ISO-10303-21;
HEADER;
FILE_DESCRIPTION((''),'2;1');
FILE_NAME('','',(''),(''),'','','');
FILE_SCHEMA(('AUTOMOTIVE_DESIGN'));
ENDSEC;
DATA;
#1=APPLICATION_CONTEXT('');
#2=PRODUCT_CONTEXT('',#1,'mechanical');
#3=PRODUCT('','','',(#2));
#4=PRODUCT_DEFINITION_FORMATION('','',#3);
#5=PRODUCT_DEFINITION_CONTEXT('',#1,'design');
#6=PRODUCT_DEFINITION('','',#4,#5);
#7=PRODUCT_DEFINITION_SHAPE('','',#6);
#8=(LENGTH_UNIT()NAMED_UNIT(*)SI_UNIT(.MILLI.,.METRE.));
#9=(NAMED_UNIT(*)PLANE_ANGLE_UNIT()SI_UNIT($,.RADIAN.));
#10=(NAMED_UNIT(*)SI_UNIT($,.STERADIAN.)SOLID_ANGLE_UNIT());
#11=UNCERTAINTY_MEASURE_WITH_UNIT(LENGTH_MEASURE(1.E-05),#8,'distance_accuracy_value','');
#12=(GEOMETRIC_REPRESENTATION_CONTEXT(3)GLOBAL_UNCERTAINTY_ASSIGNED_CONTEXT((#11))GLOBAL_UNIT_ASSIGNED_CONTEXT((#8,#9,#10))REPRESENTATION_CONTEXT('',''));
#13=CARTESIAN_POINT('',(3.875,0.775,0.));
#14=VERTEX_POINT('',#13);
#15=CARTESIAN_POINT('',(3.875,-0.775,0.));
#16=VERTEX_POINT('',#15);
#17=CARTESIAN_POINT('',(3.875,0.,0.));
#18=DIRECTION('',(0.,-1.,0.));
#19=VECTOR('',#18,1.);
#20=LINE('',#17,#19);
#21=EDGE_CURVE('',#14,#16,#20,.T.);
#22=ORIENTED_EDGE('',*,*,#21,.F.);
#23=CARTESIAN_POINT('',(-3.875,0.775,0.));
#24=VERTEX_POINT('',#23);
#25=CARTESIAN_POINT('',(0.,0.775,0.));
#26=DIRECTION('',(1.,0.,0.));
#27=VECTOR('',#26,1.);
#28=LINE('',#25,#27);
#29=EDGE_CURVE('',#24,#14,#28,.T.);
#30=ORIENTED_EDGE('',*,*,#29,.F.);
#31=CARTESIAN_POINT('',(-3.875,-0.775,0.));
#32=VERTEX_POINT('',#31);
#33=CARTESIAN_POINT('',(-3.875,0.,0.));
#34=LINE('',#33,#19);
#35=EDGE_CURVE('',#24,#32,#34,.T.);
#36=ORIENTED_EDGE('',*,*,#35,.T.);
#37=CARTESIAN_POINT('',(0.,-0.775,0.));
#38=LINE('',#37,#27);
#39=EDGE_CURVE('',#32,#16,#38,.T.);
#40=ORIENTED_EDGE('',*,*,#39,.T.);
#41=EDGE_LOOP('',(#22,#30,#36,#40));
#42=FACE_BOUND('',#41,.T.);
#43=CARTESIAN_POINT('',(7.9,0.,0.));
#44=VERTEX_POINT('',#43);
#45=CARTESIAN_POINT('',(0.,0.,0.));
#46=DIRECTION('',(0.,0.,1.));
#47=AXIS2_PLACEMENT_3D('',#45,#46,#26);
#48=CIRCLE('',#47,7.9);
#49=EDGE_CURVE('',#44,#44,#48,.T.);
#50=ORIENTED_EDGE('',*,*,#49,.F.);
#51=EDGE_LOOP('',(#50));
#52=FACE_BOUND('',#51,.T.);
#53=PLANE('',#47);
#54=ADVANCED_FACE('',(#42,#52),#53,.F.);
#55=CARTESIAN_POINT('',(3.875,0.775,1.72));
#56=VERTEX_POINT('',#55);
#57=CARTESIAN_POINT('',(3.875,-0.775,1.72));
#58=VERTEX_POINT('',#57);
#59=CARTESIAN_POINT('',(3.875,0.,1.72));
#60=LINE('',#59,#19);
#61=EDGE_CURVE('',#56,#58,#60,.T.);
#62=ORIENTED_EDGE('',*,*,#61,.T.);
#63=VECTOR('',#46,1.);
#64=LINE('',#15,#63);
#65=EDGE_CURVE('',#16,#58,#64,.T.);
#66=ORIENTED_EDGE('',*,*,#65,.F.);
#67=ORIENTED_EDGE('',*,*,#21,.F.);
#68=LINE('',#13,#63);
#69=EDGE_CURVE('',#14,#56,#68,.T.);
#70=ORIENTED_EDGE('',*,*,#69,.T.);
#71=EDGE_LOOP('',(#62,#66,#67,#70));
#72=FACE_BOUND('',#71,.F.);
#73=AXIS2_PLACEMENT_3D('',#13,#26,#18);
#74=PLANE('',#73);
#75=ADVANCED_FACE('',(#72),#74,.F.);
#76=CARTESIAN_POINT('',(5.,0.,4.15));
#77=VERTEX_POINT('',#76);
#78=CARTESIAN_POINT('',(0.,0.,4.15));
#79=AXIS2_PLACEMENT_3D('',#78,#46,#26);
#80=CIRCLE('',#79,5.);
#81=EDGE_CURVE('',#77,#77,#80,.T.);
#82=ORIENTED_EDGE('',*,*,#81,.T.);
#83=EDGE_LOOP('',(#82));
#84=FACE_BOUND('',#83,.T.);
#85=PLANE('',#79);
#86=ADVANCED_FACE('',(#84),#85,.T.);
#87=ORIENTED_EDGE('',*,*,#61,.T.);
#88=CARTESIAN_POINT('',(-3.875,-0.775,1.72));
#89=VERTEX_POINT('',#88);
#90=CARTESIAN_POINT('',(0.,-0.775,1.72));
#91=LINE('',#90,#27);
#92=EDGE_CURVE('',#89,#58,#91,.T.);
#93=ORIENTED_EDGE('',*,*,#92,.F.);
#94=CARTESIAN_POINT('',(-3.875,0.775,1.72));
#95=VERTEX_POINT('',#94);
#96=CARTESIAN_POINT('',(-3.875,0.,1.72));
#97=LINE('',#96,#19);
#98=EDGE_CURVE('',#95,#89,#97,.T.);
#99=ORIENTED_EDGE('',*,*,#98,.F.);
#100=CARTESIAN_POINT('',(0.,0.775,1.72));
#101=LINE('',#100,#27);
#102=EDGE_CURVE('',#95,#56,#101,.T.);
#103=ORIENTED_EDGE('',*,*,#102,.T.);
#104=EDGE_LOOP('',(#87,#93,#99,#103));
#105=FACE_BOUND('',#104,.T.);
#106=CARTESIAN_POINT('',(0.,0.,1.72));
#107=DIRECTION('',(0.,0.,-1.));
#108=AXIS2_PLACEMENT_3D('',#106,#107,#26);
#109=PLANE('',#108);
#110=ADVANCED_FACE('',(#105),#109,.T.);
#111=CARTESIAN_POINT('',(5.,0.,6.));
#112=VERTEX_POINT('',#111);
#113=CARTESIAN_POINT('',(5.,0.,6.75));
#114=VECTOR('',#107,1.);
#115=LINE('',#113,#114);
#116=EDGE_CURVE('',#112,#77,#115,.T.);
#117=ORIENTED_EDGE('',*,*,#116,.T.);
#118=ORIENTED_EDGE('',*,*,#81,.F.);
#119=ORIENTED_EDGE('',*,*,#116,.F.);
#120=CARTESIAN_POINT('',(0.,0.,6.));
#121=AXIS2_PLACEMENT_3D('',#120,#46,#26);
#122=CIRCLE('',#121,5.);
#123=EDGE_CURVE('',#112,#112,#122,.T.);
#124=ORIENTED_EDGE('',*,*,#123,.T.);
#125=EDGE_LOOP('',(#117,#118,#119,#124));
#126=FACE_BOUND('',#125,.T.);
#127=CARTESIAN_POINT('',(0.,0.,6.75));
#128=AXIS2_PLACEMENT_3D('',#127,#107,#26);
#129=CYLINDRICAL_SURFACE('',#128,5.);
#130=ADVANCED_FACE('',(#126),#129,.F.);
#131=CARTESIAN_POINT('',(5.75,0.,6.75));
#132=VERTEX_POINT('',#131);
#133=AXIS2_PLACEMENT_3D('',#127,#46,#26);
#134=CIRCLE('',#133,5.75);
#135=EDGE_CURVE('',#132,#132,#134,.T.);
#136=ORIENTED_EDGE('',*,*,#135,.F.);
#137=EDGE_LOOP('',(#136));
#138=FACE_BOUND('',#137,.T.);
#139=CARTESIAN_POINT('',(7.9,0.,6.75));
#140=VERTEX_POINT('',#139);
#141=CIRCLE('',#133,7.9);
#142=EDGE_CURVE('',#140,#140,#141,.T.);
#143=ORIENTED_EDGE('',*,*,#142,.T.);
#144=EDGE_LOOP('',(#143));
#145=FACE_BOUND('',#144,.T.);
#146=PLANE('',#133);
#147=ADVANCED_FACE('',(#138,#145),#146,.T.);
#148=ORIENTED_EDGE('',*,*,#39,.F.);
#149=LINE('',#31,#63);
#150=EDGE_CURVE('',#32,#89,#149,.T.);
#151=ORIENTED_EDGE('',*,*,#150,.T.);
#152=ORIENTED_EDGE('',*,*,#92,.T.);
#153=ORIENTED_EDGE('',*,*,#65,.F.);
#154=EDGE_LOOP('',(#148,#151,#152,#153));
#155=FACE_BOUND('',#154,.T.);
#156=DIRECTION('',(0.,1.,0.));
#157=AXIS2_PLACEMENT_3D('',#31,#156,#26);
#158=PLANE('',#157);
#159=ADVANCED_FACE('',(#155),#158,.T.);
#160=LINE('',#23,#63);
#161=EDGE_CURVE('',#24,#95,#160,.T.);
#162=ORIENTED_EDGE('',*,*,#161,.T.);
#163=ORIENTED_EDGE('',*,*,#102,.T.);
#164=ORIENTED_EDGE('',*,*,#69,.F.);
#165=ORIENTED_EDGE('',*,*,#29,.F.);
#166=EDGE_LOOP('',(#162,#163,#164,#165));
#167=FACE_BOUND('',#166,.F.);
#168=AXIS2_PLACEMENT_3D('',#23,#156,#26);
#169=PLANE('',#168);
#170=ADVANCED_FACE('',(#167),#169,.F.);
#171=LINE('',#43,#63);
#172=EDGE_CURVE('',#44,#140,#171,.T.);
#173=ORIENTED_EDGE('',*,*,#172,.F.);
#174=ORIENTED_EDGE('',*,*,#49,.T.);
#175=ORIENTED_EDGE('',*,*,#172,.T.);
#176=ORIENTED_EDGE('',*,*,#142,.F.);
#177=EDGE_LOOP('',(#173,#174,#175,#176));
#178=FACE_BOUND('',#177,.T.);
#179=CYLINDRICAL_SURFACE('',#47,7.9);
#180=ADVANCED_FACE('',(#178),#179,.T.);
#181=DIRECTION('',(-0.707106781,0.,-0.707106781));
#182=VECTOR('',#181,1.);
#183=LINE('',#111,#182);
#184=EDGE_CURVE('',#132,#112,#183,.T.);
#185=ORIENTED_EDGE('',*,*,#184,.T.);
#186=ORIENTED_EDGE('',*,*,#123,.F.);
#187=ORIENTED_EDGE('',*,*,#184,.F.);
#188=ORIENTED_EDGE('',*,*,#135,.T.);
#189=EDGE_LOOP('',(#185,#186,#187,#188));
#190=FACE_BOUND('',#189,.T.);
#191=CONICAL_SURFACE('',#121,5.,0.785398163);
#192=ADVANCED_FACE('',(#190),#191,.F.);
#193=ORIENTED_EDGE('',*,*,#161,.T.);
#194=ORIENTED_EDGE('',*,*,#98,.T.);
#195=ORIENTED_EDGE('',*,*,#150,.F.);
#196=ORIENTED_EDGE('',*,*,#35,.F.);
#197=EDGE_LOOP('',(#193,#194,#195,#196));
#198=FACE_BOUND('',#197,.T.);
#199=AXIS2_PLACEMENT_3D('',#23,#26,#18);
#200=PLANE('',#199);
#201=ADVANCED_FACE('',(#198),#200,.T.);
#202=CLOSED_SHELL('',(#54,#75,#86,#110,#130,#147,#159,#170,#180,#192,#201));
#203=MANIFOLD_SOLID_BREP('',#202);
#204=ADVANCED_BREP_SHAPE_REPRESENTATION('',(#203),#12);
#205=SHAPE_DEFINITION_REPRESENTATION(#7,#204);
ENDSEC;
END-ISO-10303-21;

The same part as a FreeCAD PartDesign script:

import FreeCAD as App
import Part
import Sketcher
Q = App.Units.Quantity


def edges_at(feature, points):
    """Names of the edges that pass closest to the given points."""
    edges = feature.Shape.Edges
    near = lambda p: min(range(len(edges)), key=lambda i: edges[i].distToShape(Part.Vertex(*p))[0])
    return sorted({f"Edge{near(p) + 1}" for p in points})

doc = App.newDocument("Part")
body = doc.addObject("PartDesign::Body", "Body")

# Sketch on XZ plane
sketch1 = body.newObject("Sketcher::SketchObject", "Sketch")
sketch1.AttachmentSupport = (doc.getObject("XZ_Plane"), [""])
sketch1.MapMode = "FlatFace"
sketch1.addGeometry([
    Part.LineSegment(App.Vector(0, 4.2, 0), App.Vector(0, 0, 0)),  # 0
    Part.LineSegment(App.Vector(0, 0, 0), App.Vector(7.9, 0, 0)),  # 1
    Part.LineSegment(App.Vector(7.9, 0, 0), App.Vector(7.9, 6.8, 0)),  # 2
    Part.LineSegment(App.Vector(7.9, 6.8, 0), App.Vector(5, 6.8, 0)),  # 3
    Part.LineSegment(App.Vector(5, 6.8, 0), App.Vector(5, 4.2, 0)),  # 4
    Part.LineSegment(App.Vector(5, 4.2, 0), App.Vector(0, 4.2, 0)),  # 5
], False)
sketch1.addConstraint([
    Sketcher.Constraint("Coincident", 0, 2, 1, 1),
    Sketcher.Constraint("Coincident", 1, 2, 2, 1),
    Sketcher.Constraint("Coincident", 2, 2, 3, 1),
    Sketcher.Constraint("Coincident", 3, 2, 4, 1),
    Sketcher.Constraint("Coincident", 4, 2, 5, 1),
    Sketcher.Constraint("Coincident", 5, 2, 0, 1),
    Sketcher.Constraint("Vertical", 0),
    Sketcher.Constraint("Horizontal", 1),
    Sketcher.Constraint("Vertical", 2),
    Sketcher.Constraint("Horizontal", 3),
    Sketcher.Constraint("Vertical", 4),
    Sketcher.Constraint("Horizontal", 5),
    Sketcher.Constraint("Coincident", 0, 2, -1, 1),
    Sketcher.Constraint("DistanceX", 5, 2, 5, 1, Q("5 mm")),
    Sketcher.Constraint("DistanceX", 1, 1, 1, 2, Q("7.9 mm")),
    Sketcher.Constraint("DistanceY", 4, 2, 4, 1, Q("2.6 mm")),
    Sketcher.Constraint("DistanceY", 0, 2, 0, 1, Q("4.15 mm")),
])
revolution = body.newObject("PartDesign::Revolution", "Revolution")
revolution.Profile = sketch1
revolution.ReferenceAxis = (sketch1, ["V_Axis"])
revolution.Angle = 360

# Sketch on XY plane
sketch2 = body.newObject("Sketcher::SketchObject", "Sketch001")
sketch2.AttachmentSupport = (doc.getObject("XY_Plane"), [""])
sketch2.MapMode = "FlatFace"
sketch2.addGeometry([
    Part.LineSegment(App.Vector(-3.9, -0.8, 0), App.Vector(-3.9, 0.8, 0)),
    Part.LineSegment(App.Vector(-3.9, 0.8, 0), App.Vector(3.9, 0.8, 0)),
    Part.LineSegment(App.Vector(3.9, 0.8, 0), App.Vector(3.9, -0.8, 0)),
    Part.LineSegment(App.Vector(3.9, -0.8, 0), App.Vector(-3.9, -0.8, 0)),
], False)
sketch2.addConstraint([
    Sketcher.Constraint("Coincident", 0, 2, 1, 1),
    Sketcher.Constraint("Coincident", 1, 2, 2, 1),
    Sketcher.Constraint("Coincident", 2, 2, 3, 1),
    Sketcher.Constraint("Coincident", 3, 2, 0, 1),
    Sketcher.Constraint("Vertical", 0),
    Sketcher.Constraint("Horizontal", 1),
    Sketcher.Constraint("Vertical", 2),
    Sketcher.Constraint("Horizontal", 3),
    Sketcher.Constraint("Symmetric", 0, 2, 2, 2, -1, 1),
    Sketcher.Constraint("DistanceX", 1, 1, 1, 2, Q("7.75 mm")),
    Sketcher.Constraint("DistanceY", 0, 1, 0, 2, Q("1.55 mm")),
])
pocket1 = body.newObject("PartDesign::Pocket", "Pocket")
pocket1.Profile = sketch2
pocket1.Length = 1.72
pocket1.Reversed = True
doc.recompute()

chamfer = body.newObject("PartDesign::Chamfer", "Chamfer")
chamfer.Base = (pocket1, edges_at(pocket1, [(-5, 0, 6.75)]))
chamfer.Size = 0.75

doc.recompute()
